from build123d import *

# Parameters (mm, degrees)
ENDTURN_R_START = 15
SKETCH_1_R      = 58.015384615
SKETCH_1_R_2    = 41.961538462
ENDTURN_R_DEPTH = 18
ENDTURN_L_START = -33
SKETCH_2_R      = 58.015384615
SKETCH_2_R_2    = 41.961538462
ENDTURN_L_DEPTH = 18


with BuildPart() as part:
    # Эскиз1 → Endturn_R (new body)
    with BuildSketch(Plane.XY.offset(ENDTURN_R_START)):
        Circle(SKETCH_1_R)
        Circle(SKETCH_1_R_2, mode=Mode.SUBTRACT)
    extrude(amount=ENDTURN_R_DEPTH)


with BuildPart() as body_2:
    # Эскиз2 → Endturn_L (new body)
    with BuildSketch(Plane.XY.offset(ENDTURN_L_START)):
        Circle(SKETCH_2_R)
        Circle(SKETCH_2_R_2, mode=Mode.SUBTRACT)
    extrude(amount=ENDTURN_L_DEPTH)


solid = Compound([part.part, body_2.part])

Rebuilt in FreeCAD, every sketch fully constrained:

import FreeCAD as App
import Part
import Sketcher
from FreeCAD import Vector

doc = App.newDocument("Part")
body = doc.addObject("PartDesign::Body", "Body")

# Sketch on XY plane
sketch1 = body.newObject("Sketcher::SketchObject", "Sketch")
sketch1.AttachmentSupport = (doc.getObject("XY_Plane"), [""])
sketch1.MapMode = "FlatFace"
sketch1.AttachmentOffset = App.Placement(Vector(0, 0, 15), App.Rotation())
sketch1.addGeometry(Part.Circle(Vector(0, 0, 0), Vector(0, 0, 1), 58), False)
sketch1.addGeometry(Part.Circle(Vector(0, 0, 0), Vector(0, 0, 1), 42), False)
sketch1.addConstraint(Sketcher.Constraint("Coincident", 0, 3, -1, 1))
sketch1.addConstraint(Sketcher.Constraint("Coincident", 1, 3, -1, 1))
sketch1.addConstraint(Sketcher.Constraint("Diameter", 0, 116.030769))
sketch1.addConstraint(Sketcher.Constraint("Diameter", 1, 83.923077))
pad1 = body.newObject("PartDesign::Pad", "Pad")
pad1.Profile = sketch1
pad1.Length = 18
body2 = doc.addObject("PartDesign::Body", "Body001")

# Sketch on XY plane
sketch2 = body2.newObject("Sketcher::SketchObject", "Sketch001")
sketch2.AttachmentSupport = (doc.getObject("XY_Plane001"), [""])
sketch2.MapMode = "FlatFace"
sketch2.AttachmentOffset = App.Placement(Vector(0, 0, -33), App.Rotation())
sketch2.addGeometry(Part.Circle(Vector(0, 0, 0), Vector(0, 0, 1), 58), False)
sketch2.addGeometry(Part.Circle(Vector(0, 0, 0), Vector(0, 0, 1), 42), False)
sketch2.addConstraint(Sketcher.Constraint("Coincident", 0, 3, -1, 1))
sketch2.addConstraint(Sketcher.Constraint("Coincident", 1, 3, -1, 1))
sketch2.addConstraint(Sketcher.Constraint("Diameter", 0, 116.030769))
sketch2.addConstraint(Sketcher.Constraint("Diameter", 1, 83.923077))
pad2 = body2.newObject("PartDesign::Pad", "Pad001")
pad2.Profile = sketch2
pad2.Length = 18

doc.recompute()
